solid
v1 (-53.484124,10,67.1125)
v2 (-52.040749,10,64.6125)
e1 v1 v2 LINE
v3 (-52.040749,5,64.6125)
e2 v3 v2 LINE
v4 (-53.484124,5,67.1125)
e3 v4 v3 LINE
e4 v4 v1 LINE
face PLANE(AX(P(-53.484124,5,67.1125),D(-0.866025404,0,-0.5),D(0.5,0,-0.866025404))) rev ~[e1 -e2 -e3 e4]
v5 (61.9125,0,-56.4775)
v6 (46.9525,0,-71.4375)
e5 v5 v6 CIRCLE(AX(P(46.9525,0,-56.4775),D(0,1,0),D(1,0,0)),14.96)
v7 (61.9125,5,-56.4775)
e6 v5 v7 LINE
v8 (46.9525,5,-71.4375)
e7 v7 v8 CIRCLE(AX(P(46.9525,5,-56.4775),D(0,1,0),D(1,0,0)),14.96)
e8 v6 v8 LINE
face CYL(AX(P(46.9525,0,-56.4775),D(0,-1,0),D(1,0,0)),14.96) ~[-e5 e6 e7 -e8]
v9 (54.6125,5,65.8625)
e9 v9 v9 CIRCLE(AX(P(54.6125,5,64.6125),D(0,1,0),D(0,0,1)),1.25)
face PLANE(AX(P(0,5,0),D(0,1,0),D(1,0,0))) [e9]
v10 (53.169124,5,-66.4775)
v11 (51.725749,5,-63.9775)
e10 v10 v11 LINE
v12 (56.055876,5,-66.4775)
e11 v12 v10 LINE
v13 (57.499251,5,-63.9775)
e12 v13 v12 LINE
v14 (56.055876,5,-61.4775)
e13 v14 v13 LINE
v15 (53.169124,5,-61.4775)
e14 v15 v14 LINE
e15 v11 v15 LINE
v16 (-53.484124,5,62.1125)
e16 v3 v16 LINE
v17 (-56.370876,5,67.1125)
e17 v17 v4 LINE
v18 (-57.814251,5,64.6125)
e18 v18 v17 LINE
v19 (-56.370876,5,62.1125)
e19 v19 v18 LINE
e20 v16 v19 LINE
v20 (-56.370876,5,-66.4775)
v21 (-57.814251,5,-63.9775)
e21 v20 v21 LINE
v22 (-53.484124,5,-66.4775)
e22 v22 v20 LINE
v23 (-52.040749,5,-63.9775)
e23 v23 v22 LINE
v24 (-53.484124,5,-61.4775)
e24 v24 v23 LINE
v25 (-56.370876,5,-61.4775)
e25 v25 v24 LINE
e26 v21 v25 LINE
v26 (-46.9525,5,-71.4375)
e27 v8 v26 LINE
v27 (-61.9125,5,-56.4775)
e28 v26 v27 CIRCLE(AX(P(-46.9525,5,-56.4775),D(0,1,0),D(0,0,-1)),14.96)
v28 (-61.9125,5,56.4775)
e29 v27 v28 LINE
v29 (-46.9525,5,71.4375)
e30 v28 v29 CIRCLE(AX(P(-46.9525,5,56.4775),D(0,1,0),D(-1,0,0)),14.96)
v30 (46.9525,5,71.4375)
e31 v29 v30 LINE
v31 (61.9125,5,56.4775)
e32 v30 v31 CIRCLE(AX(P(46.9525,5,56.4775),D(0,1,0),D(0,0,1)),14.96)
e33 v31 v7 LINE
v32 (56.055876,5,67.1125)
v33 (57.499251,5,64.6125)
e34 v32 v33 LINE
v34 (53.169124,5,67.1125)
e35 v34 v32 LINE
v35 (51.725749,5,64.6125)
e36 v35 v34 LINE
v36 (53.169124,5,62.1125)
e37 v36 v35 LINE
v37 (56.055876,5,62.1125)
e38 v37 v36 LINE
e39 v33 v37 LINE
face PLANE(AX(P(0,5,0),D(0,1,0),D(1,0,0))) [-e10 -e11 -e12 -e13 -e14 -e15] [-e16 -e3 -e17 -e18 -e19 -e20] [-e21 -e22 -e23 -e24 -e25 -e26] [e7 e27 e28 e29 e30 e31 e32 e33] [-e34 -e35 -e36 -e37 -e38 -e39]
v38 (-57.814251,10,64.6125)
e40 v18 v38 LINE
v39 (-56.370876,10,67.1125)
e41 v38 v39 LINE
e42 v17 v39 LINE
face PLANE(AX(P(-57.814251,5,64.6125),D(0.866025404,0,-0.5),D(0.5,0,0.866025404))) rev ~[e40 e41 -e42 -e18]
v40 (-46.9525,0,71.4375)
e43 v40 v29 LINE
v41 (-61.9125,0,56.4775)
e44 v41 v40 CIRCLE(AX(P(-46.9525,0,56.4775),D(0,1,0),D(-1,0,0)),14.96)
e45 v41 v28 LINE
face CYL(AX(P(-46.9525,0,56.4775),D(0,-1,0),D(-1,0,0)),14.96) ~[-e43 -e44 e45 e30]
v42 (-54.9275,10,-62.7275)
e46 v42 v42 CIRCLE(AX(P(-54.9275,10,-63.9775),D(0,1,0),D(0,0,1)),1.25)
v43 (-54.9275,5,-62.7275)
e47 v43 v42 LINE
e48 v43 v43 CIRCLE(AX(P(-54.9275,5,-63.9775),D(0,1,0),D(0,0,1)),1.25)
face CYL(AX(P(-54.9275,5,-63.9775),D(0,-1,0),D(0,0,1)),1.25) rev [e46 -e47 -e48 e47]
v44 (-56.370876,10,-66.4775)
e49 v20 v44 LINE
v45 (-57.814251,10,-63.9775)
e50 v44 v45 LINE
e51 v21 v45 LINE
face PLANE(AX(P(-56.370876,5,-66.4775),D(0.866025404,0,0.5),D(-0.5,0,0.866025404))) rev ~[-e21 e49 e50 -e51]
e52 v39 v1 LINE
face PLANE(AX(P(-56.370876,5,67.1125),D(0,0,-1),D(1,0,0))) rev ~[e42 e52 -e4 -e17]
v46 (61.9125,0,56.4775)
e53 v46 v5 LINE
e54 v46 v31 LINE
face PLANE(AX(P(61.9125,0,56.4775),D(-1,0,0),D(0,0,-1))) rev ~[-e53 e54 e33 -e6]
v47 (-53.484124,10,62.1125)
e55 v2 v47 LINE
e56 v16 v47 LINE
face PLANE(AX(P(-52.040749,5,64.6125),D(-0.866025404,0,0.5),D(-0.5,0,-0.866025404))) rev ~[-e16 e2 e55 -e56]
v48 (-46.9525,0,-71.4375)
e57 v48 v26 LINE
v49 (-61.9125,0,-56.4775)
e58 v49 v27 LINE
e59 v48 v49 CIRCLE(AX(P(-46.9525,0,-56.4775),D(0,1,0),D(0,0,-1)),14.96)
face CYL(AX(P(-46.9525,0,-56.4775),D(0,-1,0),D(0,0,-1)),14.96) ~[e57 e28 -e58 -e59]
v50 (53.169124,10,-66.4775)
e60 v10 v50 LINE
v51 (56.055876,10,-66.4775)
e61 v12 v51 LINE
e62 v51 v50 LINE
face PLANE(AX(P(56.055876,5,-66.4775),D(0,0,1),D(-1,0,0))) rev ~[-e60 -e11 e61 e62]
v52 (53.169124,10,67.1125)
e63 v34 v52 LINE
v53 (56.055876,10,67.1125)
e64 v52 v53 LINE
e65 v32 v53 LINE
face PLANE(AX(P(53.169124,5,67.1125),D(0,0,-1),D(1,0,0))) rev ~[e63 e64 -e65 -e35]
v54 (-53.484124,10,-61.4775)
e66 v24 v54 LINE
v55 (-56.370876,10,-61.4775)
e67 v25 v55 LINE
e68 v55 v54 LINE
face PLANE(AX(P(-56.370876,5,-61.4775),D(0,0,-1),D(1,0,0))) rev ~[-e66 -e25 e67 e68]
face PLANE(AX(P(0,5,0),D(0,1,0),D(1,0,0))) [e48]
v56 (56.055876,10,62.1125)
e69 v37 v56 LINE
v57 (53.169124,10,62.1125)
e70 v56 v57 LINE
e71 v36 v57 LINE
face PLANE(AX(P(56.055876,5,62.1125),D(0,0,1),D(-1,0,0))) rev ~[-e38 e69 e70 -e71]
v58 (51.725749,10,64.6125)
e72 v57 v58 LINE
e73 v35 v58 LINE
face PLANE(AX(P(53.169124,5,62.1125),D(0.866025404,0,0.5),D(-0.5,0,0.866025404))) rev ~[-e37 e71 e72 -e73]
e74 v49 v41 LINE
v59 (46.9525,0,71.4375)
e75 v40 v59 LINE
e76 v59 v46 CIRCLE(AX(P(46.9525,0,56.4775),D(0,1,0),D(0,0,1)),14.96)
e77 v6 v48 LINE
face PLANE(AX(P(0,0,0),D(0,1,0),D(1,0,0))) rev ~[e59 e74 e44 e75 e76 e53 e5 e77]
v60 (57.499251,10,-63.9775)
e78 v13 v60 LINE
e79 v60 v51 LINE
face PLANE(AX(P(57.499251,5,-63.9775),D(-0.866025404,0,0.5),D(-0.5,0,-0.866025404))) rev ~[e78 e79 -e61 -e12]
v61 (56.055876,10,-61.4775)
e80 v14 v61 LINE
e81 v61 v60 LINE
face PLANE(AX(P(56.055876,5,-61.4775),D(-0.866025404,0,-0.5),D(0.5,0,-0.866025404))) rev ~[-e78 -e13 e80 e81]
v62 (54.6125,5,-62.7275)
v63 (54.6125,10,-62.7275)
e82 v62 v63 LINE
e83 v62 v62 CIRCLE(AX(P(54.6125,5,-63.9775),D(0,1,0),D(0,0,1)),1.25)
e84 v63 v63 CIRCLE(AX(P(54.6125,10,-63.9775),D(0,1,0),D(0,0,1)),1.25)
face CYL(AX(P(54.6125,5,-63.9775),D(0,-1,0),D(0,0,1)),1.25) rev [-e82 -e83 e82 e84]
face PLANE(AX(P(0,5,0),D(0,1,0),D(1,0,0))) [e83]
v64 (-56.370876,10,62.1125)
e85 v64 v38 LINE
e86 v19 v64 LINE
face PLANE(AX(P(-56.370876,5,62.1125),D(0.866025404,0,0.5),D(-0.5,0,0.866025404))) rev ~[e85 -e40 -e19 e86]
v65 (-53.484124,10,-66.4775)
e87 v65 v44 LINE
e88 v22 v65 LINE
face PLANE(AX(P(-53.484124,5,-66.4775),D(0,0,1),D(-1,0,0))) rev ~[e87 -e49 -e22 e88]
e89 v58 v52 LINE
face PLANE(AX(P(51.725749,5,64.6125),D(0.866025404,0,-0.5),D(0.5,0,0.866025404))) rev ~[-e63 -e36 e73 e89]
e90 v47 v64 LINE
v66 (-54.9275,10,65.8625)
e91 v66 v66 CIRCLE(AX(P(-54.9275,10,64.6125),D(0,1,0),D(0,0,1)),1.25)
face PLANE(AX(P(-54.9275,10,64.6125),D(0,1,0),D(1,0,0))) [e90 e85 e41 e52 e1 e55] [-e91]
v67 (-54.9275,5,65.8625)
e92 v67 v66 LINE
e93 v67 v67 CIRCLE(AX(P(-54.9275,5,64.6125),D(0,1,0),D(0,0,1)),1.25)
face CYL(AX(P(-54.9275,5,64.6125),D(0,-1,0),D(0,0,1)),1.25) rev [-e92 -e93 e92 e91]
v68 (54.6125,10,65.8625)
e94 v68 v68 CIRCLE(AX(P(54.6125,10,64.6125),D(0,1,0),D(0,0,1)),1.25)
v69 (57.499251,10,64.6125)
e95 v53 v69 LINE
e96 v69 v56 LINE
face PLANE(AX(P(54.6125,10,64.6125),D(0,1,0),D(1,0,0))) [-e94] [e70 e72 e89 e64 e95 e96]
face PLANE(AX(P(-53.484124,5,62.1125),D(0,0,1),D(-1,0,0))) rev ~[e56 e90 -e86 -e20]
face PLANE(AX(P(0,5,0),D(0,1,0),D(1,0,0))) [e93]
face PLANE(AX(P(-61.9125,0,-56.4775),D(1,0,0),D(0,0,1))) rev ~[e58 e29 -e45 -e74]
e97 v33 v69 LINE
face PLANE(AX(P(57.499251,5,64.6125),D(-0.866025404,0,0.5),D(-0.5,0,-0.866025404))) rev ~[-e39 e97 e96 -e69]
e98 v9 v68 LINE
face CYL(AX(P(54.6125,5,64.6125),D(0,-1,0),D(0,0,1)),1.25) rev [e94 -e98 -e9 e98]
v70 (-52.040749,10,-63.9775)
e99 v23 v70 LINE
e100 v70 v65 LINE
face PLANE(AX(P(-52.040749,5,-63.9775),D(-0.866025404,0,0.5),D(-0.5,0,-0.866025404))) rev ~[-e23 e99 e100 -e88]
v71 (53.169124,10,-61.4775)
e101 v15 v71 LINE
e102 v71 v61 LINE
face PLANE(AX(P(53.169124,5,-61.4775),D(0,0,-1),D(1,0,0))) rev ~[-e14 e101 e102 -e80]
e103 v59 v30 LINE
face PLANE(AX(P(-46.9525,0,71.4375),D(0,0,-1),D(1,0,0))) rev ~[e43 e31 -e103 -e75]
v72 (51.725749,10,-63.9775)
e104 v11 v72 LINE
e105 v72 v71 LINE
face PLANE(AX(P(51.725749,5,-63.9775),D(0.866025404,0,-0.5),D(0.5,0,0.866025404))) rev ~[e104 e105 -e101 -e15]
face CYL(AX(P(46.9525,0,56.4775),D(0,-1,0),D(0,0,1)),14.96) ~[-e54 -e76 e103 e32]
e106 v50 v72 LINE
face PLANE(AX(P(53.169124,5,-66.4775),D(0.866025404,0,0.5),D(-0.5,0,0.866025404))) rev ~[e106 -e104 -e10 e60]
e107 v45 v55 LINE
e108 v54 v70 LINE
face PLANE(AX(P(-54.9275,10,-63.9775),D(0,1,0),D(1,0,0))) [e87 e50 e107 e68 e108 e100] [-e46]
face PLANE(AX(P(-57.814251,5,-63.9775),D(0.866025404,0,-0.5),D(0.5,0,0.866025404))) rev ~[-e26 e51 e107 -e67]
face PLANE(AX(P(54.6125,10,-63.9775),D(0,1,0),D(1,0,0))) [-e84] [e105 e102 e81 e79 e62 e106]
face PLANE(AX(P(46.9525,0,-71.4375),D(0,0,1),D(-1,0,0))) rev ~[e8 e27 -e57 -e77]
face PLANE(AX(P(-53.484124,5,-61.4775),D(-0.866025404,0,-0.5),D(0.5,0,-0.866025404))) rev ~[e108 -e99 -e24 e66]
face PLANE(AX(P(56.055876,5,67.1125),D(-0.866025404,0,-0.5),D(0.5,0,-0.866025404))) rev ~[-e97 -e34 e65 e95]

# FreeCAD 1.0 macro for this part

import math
import FreeCAD as App
import Part
import Sketcher

V = App.Vector
Q = App.Units.Quantity

doc = App.newDocument("Part")
params = doc.addObject("Spreadsheet::Sheet", "Params")
for row, (alias, value) in enumerate([
    ("sketch1_radius", "14.96 mm"),
    ("pad1_length", "5 mm"),
    ("sketch2_diameter", "2.5 mm"),
    ("pad2_length", "5 mm"),
], start=1):
    params.set(f"A{row}", alias)
    params.set(f"B{row}", "=" + value)
    params.setAlias(f"B{row}", alias)

body = doc.addObject("PartDesign::Body", "Body")

sketch1 = body.newObject("Sketcher::SketchObject", "Sketch")
sketch1.AttachmentSupport = (doc.getObject("XZ_Plane"), [""])
sketch1.MapMode = "FlatFace"
sketch1.addGeometry([
    Part.LineSegment(V(-47, 71, 0), V(47, 71, 0)),
    Part.ArcOfCircle(Part.Circle(V(47, 56, 0), V(0, 0, 1), 15), math.radians(0), math.radians(90)),
    Part.LineSegment(V(62, 56, 0), V(62, -56, 0)),
    Part.ArcOfCircle(Part.Circle(V(47, -56, 0), V(0, 0, 1), 15), math.radians(-90), math.radians(0)),
    Part.LineSegment(V(47, -71, 0), V(-47, -71, 0)),
    Part.ArcOfCircle(Part.Circle(V(-47, -56, 0), V(0, 0, 1), 15), math.radians(180), math.radians(270)),
    Part.LineSegment(V(-62, -56, 0), V(-62, 56, 0)),
    Part.ArcOfCircle(Part.Circle(V(-47, 56, 0), V(0, 0, 1), 15), math.radians(90), math.radians(180)),
], False)
sketch1.addConstraint([
    Sketcher.Constraint("Tangent", 0, 2, 1, 2),
    Sketcher.Constraint("Tangent", 1, 1, 2, 1),
    Sketcher.Constraint("Tangent", 2, 2, 3, 2),
    Sketcher.Constraint("Tangent", 3, 1, 4, 1),
    Sketcher.Constraint("Tangent", 4, 2, 5, 2),
    Sketcher.Constraint("Tangent", 5, 1, 6, 1),
    Sketcher.Constraint("Tangent", 6, 2, 7, 2),
    Sketcher.Constraint("Tangent", 7, 1, 0, 1),
    Sketcher.Constraint("Horizontal", 0),
    Sketcher.Constraint("Vertical", 2),
    Sketcher.Constraint("Horizontal", 4),
    Sketcher.Constraint("Vertical", 6),
    Sketcher.Constraint("Equal", 1, 3),
    Sketcher.Constraint("Equal", 3, 5),
    Sketcher.Constraint("Equal", 5, 7),
    Sketcher.Constraint("Symmetric", 1, 3, 5, 3, -1, 1),
    Sketcher.Constraint("Radius", 1, Q("14.96 mm")),
    Sketcher.Constraint("DistanceX", 0, 1, 0, 2, Q("93.905 mm")),
    Sketcher.Constraint("DistanceY", 2, 2, 2, 1, Q("112.955 mm")),
])
sketch1.setExpression("Constraints[16]", "Params.sketch1_radius")
pad1 = body.newObject("PartDesign::Pad", "Pad")
pad1.Profile = sketch1
pad1.setExpression("Length", "Params.pad1_length")
pad1.Reversed = True

sketch2 = body.newObject("Sketcher::SketchObject", "Sketch001")
sketch2.AttachmentSupport = (doc.getObject("XZ_Plane"), [""])
sketch2.MapMode = "FlatFace"
sketch2.AttachmentOffset = App.Placement(V(0, 0, -5), App.Rotation())
sketch2.addGeometry([
    Part.LineSegment(V(-56.4, 62.1, 0), V(-57.8, 64.6, 0)),
    Part.LineSegment(V(-57.8, 64.6, 0), V(-56.4, 67.1, 0)),
    Part.LineSegment(V(-56.4, 67.1, 0), V(-53.5, 67.1, 0)),
    Part.LineSegment(V(-53.5, 67.1, 0), V(-52, 64.6, 0)),
    Part.LineSegment(V(-52, 64.6, 0), V(-53.5, 62.1, 0)),
    Part.LineSegment(V(-53.5, 62.1, 0), V(-56.4, 62.1, 0)),
    Part.Circle(V(-54.9, 64.6, 0), V(0, 0, 1), 1.2),
    Part.LineSegment(V(56.1, 62.1, 0), V(53.2, 62.1, 0)),
    Part.LineSegment(V(53.2, 62.1, 0), V(51.7, 64.6, 0)),
    Part.LineSegment(V(51.7, 64.6, 0), V(53.2, 67.1, 0)),
    Part.LineSegment(V(53.2, 67.1, 0), V(56.1, 67.1, 0)),
    Part.LineSegment(V(56.1, 67.1, 0), V(57.5, 64.6, 0)),
    Part.LineSegment(V(57.5, 64.6, 0), V(56.1, 62.1, 0)),
    Part.Circle(V(54.6, 64.6, 0), V(0, 0, 1), 1.2),
    Part.LineSegment(V(-56.4, -66.5, 0), V(-57.8, -64, 0)),
    Part.LineSegment(V(-57.8, -64, 0), V(-56.4, -61.5, 0)),
    Part.LineSegment(V(-56.4, -61.5, 0), V(-53.5, -61.5, 0)),
    Part.LineSegment(V(-53.5, -61.5, 0), V(-52, -64, 0)),
    Part.LineSegment(V(-52, -64, 0), V(-53.5, -66.5, 0)),
    Part.LineSegment(V(-53.5, -66.5, 0), V(-56.4, -66.5, 0)),
    Part.Circle(V(-54.9, -64, 0), V(0, 0, 1), 1.2),
    Part.LineSegment(V(57.5, -64, 0), V(56.1, -66.5, 0)),
    Part.LineSegment(V(56.1, -66.5, 0), V(53.2, -66.5, 0)),
    Part.LineSegment(V(53.2, -66.5, 0), V(51.7, -64, 0)),
    Part.LineSegment(V(51.7, -64, 0), V(53.2, -61.5, 0)),
    Part.LineSegment(V(53.2, -61.5, 0), V(56.1, -61.5, 0)),
    Part.LineSegment(V(56.1, -61.5, 0), V(57.5, -64, 0)),
    Part.Circle(V(54.6, -64, 0), V(0, 0, 1), 1.2),
], False)
sketch2.addConstraint([
    Sketcher.Constraint("Coincident", 0, 2, 1, 1),
    Sketcher.Constraint("Coincident", 1, 2, 2, 1),
    Sketcher.Constraint("Coincident", 2, 2, 3, 1),
    Sketcher.Constraint("Coincident", 3, 2, 4, 1),
    Sketcher.Constraint("Coincident", 4, 2, 5, 1),
    Sketcher.Constraint("Coincident", 5, 2, 0, 1),
    Sketcher.Constraint("Coincident", 7, 2, 8, 1),
    Sketcher.Constraint("Coincident", 8, 2, 9, 1),
    Sketcher.Constraint("Coincident", 9, 2, 10, 1),
    Sketcher.Constraint("Coincident", 10, 2, 11, 1),
    Sketcher.Constraint("Coincident", 11, 2, 12, 1),
    Sketcher.Constraint("Coincident", 12, 2, 7, 1),
    Sketcher.Constraint("Coincident", 14, 2, 15, 1),
    Sketcher.Constraint("Coincident", 15, 2, 16, 1),
    Sketcher.Constraint("Coincident", 16, 2, 17, 1),
    Sketcher.Constraint("Coincident", 17, 2, 18, 1),
    Sketcher.Constraint("Coincident", 18, 2, 19, 1),
    Sketcher.Constraint("Coincident", 19, 2, 14, 1),
    Sketcher.Constraint("Coincident", 21, 2, 22, 1),
    Sketcher.Constraint("Coincident", 22, 2, 23, 1),
    Sketcher.Constraint("Coincident", 23, 2, 24, 1),
    Sketcher.Constraint("Coincident", 24, 2, 25, 1),
    Sketcher.Constraint("Coincident", 25, 2, 26, 1),
    Sketcher.Constraint("Coincident", 26, 2, 21, 1),
    Sketcher.Constraint("Horizontal", 2),
    Sketcher.Constraint("Horizontal", 5),
    Sketcher.Constraint("Horizontal", 7),
    Sketcher.Constraint("Horizontal", 10),
    Sketcher.Constraint("Horizontal", 16),
    Sketcher.Constraint("Horizontal", 19),
    Sketcher.Constraint("Horizontal", 22),
    Sketcher.Constraint("Horizontal", 25),
    Sketcher.Constraint("Equal", 6, 13),
    Sketcher.Constraint("Equal", 13, 20),
    Sketcher.Constraint("Equal", 20, 27),
    Sketcher.Constraint("Parallel", 0, 3),
    Sketcher.Constraint("Parallel", 1, 4),
    Sketcher.Constraint("Parallel", 3, 8),
    Sketcher.Constraint("Parallel", 4, 9),
    Sketcher.Constraint("Parallel", 8, 11),
    Sketcher.Constraint("Parallel", 9, 12),
    Sketcher.Constraint("Parallel", 11, 14),
    Sketcher.Constraint("Parallel", 12, 15),
    Sketcher.Constraint("Parallel", 14, 17),
    Sketcher.Constraint("Parallel", 15, 18),
    Sketcher.Constraint("Parallel", 18, 21),
    Sketcher.Constraint("Parallel", 17, 23),
    Sketcher.Constraint("Parallel", 21, 24),
    Sketcher.Constraint("Parallel", 23, 26),
    Sketcher.Constraint("Horizontal", 6, 3, 13, 3),
    Sketcher.Constraint("Horizontal", 20, 3, 27, 3),
    Sketcher.Constraint("Horizontal", 13, 3, 0, 2),
    Sketcher.Constraint("Horizontal", 0, 2, 3, 2),
    Sketcher.Constraint("Horizontal", 5, 2, 7, 2),
    Sketcher.Constraint("Horizontal", 3, 2, 8, 2),
    Sketcher.Constraint("Horizontal", 2, 2, 9, 2),
    Sketcher.Constraint("Horizontal", 8, 2, 11, 2),
    Sketcher.Constraint("Horizontal", 27, 3, 14, 2),
    Sketcher.Constraint("Horizontal", 14, 2, 17, 2),
    Sketcher.Constraint("Horizontal", 19, 2, 21, 2),
    Sketcher.Constraint("Horizontal", 17, 2, 23, 2),
    Sketcher.Constraint("Horizontal", 16, 2, 24, 2),
    Sketcher.Constraint("Horizontal", 23, 2, 26, 2),
    Sketcher.Constraint("Vertical", 6, 3, 20, 3),
    Sketcher.Constraint("Vertical", 13, 3, 27, 3),
    Sketcher.Constraint("Vertical", 2, 2, 4, 2),
    Sketcher.Constraint("Vertical", 1, 2, 5, 2),
    Sketcher.Constraint("Vertical", 0, 2, 14, 2),
    Sketcher.Constraint("Vertical", 5, 2, 15, 2),
    Sketcher.Constraint("Vertical", 4, 2, 16, 2),
    Sketcher.Constraint("Vertical", 16, 2, 18, 2),
    Sketcher.Constraint("Vertical", 12, 2, 21, 2),
    Sketcher.Constraint("Vertical", 9, 2, 22, 2),
    Sketcher.Constraint("Equal", 5, 7),
    Sketcher.Constraint("Diameter", 6, Q("2.5 mm")),
    Sketcher.Constraint("Angle", 0, Q("120 deg")),
    Sketcher.Constraint("DistanceY", 4, 2, 2, 2, Q("5 mm")),
    Sketcher.Constraint("DistanceX", 6, 3, 13, 3, Q("109.54 mm")),
    Sketcher.Constraint("DistanceY", 20, 3, 6, 3, Q("128.59 mm")),
    Sketcher.Constraint("DistanceX", 18, 2, 21, 2, Q("109.54 mm")),
    Sketcher.Constraint("DistanceX", 2, 1, 2, 2, Q("2.886751 mm")),
    Sketcher.Constraint("DistanceX", 6, 3, -1, 1, Q("54.9275 mm")),
    Sketcher.Constraint("DistanceY", -1, 1, 6, 3, Q("64.6125 mm")),
    Sketcher.Constraint("DistanceX", 0, 2, -1, 1, Q("57.814251 mm")),
])
sketch2.setExpression("Constraints[74]", "Params.sketch2_diameter")
pad2 = body.newObject("PartDesign::Pad", "Pad001")
pad2.Profile = sketch2
pad2.setExpression("Length", "Params.pad2_length")
pad2.Reversed = True

doc.recompute()
